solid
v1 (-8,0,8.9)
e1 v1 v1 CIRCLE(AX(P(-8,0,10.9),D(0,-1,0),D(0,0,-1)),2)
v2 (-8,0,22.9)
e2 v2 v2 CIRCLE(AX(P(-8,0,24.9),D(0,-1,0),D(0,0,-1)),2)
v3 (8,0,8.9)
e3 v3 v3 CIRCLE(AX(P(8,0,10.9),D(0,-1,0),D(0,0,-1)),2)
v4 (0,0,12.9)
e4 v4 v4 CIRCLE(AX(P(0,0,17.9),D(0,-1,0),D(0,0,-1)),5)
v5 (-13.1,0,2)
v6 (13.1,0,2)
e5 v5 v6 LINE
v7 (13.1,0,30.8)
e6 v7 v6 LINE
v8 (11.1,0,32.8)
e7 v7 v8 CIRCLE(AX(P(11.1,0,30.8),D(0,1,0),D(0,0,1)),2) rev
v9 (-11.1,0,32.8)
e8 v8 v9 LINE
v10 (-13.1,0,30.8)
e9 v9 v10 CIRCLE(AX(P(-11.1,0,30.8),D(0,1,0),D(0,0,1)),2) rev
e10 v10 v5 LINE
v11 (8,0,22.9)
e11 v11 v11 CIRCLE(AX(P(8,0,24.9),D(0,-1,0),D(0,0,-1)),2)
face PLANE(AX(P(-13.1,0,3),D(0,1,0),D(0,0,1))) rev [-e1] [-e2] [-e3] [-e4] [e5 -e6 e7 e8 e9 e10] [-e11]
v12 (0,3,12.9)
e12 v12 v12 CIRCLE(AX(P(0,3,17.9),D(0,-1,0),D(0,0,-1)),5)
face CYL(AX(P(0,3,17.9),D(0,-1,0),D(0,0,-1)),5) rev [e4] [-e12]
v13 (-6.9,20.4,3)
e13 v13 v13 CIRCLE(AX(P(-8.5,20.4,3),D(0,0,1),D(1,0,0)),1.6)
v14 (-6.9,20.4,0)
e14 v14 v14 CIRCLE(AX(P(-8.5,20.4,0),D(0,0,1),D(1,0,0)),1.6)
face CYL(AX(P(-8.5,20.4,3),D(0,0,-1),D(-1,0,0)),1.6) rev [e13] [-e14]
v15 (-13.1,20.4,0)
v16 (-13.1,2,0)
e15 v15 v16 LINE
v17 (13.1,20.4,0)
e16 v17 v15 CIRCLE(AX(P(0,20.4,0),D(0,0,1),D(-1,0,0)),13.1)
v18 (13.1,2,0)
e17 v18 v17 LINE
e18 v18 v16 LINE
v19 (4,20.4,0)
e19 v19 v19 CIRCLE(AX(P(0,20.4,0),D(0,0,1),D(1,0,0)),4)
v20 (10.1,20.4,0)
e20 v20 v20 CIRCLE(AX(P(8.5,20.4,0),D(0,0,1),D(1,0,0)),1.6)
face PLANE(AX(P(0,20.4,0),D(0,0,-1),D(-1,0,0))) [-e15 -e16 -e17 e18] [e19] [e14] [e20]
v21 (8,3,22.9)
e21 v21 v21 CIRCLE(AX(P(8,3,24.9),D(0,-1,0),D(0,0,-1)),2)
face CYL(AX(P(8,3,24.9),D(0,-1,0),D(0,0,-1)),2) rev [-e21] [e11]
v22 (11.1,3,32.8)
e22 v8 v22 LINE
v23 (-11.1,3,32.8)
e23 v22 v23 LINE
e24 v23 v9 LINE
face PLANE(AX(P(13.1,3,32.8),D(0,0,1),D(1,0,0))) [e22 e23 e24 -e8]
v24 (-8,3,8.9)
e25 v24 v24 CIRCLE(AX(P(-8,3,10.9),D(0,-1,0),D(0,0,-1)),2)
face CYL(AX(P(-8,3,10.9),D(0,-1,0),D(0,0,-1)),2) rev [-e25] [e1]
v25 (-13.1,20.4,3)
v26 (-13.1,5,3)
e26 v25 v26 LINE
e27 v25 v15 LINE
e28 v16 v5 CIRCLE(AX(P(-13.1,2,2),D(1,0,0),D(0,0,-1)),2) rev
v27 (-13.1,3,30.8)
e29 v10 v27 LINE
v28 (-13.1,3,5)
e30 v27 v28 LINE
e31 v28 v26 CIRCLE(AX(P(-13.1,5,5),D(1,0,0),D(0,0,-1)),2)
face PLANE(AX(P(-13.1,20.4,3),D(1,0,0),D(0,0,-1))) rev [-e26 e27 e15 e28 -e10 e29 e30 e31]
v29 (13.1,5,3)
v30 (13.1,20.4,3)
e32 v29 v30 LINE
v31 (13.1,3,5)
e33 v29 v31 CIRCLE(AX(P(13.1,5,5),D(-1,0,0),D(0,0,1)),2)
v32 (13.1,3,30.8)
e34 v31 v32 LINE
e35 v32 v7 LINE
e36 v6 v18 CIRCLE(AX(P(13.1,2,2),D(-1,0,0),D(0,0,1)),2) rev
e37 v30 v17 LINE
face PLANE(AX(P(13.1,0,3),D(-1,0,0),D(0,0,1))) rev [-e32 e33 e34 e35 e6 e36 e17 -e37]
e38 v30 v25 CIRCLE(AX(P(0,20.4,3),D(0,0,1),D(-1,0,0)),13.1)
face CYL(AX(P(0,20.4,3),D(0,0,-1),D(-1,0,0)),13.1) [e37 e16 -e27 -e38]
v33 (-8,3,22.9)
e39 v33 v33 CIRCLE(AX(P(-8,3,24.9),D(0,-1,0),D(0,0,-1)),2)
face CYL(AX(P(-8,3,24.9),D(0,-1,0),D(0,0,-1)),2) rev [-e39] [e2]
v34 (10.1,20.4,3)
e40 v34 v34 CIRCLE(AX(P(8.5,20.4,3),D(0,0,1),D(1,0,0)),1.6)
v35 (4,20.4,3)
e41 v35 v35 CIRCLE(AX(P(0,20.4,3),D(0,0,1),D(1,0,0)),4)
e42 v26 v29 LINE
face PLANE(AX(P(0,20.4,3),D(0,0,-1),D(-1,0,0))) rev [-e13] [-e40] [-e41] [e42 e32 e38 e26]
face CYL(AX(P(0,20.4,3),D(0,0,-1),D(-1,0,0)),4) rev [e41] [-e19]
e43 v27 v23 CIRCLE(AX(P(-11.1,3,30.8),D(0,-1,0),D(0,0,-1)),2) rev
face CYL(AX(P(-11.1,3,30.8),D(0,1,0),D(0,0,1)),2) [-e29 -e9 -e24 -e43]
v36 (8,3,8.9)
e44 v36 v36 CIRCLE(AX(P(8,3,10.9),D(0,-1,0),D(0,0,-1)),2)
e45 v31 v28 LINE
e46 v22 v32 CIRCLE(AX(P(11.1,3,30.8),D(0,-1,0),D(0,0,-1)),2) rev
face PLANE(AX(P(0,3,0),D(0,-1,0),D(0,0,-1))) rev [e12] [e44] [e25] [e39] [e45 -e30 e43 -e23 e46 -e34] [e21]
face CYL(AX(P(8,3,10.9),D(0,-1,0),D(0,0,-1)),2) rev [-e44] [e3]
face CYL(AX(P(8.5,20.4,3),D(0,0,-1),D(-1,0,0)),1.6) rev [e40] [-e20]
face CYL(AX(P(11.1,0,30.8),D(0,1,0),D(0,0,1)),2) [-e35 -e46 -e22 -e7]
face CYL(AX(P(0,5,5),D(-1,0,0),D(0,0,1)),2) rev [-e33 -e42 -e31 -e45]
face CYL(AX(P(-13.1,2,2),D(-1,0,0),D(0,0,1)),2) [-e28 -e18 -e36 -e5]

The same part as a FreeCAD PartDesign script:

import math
import FreeCAD as App
import Part
import Sketcher

V = App.Vector


def edges_at(feature, points):
    """Names of the edges that pass closest to the given points."""
    edges = feature.Shape.Edges
    near = lambda p: min(range(len(edges)), key=lambda i: edges[i].distToShape(Part.Vertex(*p))[0])
    return sorted({f"Edge{near(p) + 1}" for p in points})


def add_polygon(sketch, points):
    """Adds a closed chain of lines whose ends are joined by coincident constraints."""
    first, n = sketch.GeometryCount, len(points)
    for a, b in zip(points, points[1:] + points[:1]):
        sketch.addGeometry(Part.LineSegment(App.Vector(*a, 0), App.Vector(*b, 0)), False)
    for i in range(n):
        sketch.addConstraint(Sketcher.Constraint("Coincident", first + i, 2, first + (i + 1) % n, 1))

doc = App.newDocument("Part")
params = doc.addObject("Spreadsheet::Sheet", "Params")
for row, (alias, value) in enumerate([
    ("sketch1_diameter", "8 mm"),
    ("sketch1_diameter2", "3.2 mm"),
    ("sketch1_radius", "13.1 mm"),
    ("sketch1_height", "20.4 mm"),
    ("pad1_length", "3 mm"),
    ("sketch2_diameter", "4 mm"),
    ("sketch2_diameter2", "10 mm"),
    ("sketch2_width", "26.2 mm"),
    ("sketch2_height", "29.8 mm"),
    ("pad2_length", "3 mm"),
    ("fillet_radius", "2 mm"),
], start=1):
    params.set(f"A{row}", alias)
    params.set(f"B{row}", "=" + value)
    params.setAlias(f"B{row}", alias)

body = doc.addObject("PartDesign::Body", "Body")

sketch1 = doc.addObject("Sketcher::SketchObject", "Sketch")
body.addObject(sketch1)
sketch1.AttachmentSupport = (doc.XY_Plane, [""])
sketch1.MapMode = "FlatFace"
sketch1.addGeometry(Part.LineSegment(V(-13.1, 20.4, 0), V(-13.1, 0, 0)), False)
sketch1.addGeometry(Part.LineSegment(V(-13.1, 0, 0), V(13.1, 0, 0)), False)
sketch1.addGeometry(Part.LineSegment(V(13.1, 0, 0), V(13.1, 20.4, 0)), False)
sketch1.addGeometry(Part.ArcOfCircle(Part.Circle(V(0, 20.4, 0), V(0, 0, 1), 13.1), math.radians(0), math.radians(180)), False)
sketch1.addGeometry(Part.Circle(V(-8.5, 20.4, 0), V(0, 0, 1), 1.6), False)
sketch1.addGeometry(Part.Circle(V(0, 20.4, 0), V(0, 0, 1), 4), False)
sketch1.addGeometry(Part.Circle(V(8.5, 20.4, 0), V(0, 0, 1), 1.6), False)
sketch1.addConstraint(Sketcher.Constraint("Coincident", 0, 2, 1, 1))
sketch1.addConstraint(Sketcher.Constraint("Coincident", 1, 2, 2, 1))
sketch1.addConstraint(Sketcher.Constraint("Tangent", 2, 2, 3, 1))
sketch1.addConstraint(Sketcher.Constraint("Tangent", 3, 2, 0, 1))
sketch1.addConstraint(Sketcher.Constraint("Vertical", 0))
sketch1.addConstraint(Sketcher.Constraint("Horizontal", 1))
sketch1.addConstraint(Sketcher.Constraint("Vertical", 2))
sketch1.addConstraint(Sketcher.Constraint("Coincident", 5, 3, 3, 3))
sketch1.addConstraint(Sketcher.Constraint("Equal", 4, 6))
sketch1.addConstraint(Sketcher.Constraint("Symmetric", 0, 2, 1, 2, -1, 1))
sketch1.addConstraint(Sketcher.Constraint("Symmetric", 4, 3, 6, 3, -2))
sketch1.addConstraint(Sketcher.Constraint("Horizontal", 3, 3, 4, 3))
sketch1.addConstraint(Sketcher.Constraint("Diameter", 5, 8.0))
sketch1.addConstraint(Sketcher.Constraint("Diameter", 4, 3.2))
sketch1.addConstraint(Sketcher.Constraint("Radius", 3, 13.1))
sketch1.addConstraint(Sketcher.Constraint("DistanceY", 0, 2, 0, 1, 20.4))
sketch1.addConstraint(Sketcher.Constraint("DistanceX", 4, 3, 6, 3, 17.0))
sketch1.setExpression("Constraints[12]", "Params.sketch1_diameter")
sketch1.setExpression("Constraints[13]", "Params.sketch1_diameter2")
sketch1.setExpression("Constraints[14]", "Params.sketch1_radius")
sketch1.setExpression("Constraints[15]", "Params.sketch1_height")
pad1 = doc.addObject("PartDesign::Pad", "Pad")
body.addObject(pad1)
pad1.Profile = sketch1
pad1.setExpression("Length", "Params.pad1_length")

sketch2 = doc.addObject("Sketcher::SketchObject", "Sketch001")
body.addObject(sketch2)
sketch2.AttachmentSupport = (doc.XZ_Plane, [""])
sketch2.MapMode = "FlatFace"
add_polygon(sketch2, [(-13.1, 32.8), (-13.1, 3), (13.1, 3), (13.1, 32.8)])
sketch2.addGeometry(Part.Circle(V(-8, 10.9, 0), V(0, 0, 1), 2), False)
sketch2.addGeometry(Part.Circle(V(8, 10.9, 0), V(0, 0, 1), 2), False)
sketch2.addGeometry(Part.Circle(V(0, 17.9, 0), V(0, 0, 1), 5), False)
sketch2.addGeometry(Part.Circle(V(-8, 24.9, 0), V(0, 0, 1), 2), False)
sketch2.addGeometry(Part.Circle(V(8, 24.9, 0), V(0, 0, 1), 2), False)
sketch2.addConstraint(Sketcher.Constraint("Vertical", 0))
sketch2.addConstraint(Sketcher.Constraint("Horizontal", 1))
sketch2.addConstraint(Sketcher.Constraint("Vertical", 2))
sketch2.addConstraint(Sketcher.Constraint("Horizontal", 3))
sketch2.addConstraint(Sketcher.Constraint("Equal", 4, 5))
sketch2.addConstraint(Sketcher.Constraint("Equal", 5, 7))
sketch2.addConstraint(Sketcher.Constraint("Equal", 7, 8))
sketch2.addConstraint(Sketcher.Constraint("Symmetric", 4, 3, 5, 3, -2))
sketch2.addConstraint(Sketcher.Constraint("Symmetric", 7, 3, 8, 3, -2))
sketch2.addConstraint(Sketcher.Constraint("PointOnObject", 6, 3, -2))
sketch2.addConstraint(Sketcher.Constraint("Vertical", 4, 3, 7, 3))
sketch2.addConstraint(Sketcher.Constraint("Diameter", 4, 4.0))
sketch2.addConstraint(Sketcher.Constraint("Diameter", 6, 10.0))
sketch2.addConstraint(Sketcher.Constraint("DistanceX", 1, 1, 1, 2, 26.2))
sketch2.addConstraint(Sketcher.Constraint("DistanceY", 0, 2, 0, 1, 29.8))
sketch2.addConstraint(Sketcher.Constraint("DistanceX", 4, 3, -1, 1, 8.0))
sketch2.addConstraint(Sketcher.Constraint("DistanceY", -1, 1, 0, 2, 3.0))
sketch2.addConstraint(Sketcher.Constraint("DistanceY", 4, 3, 6, 3, 7.0))
sketch2.addConstraint(Sketcher.Constraint("DistanceY", 6, 3, 7, 3, 7.0))
sketch2.addConstraint(Sketcher.Constraint("DistanceY", -1, 1, 4, 3, 10.9))
sketch2.addConstraint(Sketcher.Constraint("DistanceX", 0, 2, -1, 1, 13.1))
sketch2.setExpression("Constraints[15]", "Params.sketch2_diameter")
sketch2.setExpression("Constraints[16]", "Params.sketch2_diameter2")
sketch2.setExpression("Constraints[17]", "Params.sketch2_width")
sketch2.setExpression("Constraints[18]", "Params.sketch2_height")
pad2 = doc.addObject("PartDesign::Pad", "Pad001")
body.addObject(pad2)
pad2.Profile = sketch2
pad2.setExpression("Length", "Params.pad2_length")
pad2.Reversed = True
doc.recompute()

fillet = doc.addObject("PartDesign::Fillet", "Fillet")
body.addObject(fillet)
fillet.Base = (pad2, edges_at(pad2, [
    (13.1, 1.5, 32.8),
    (0, 3, 3),
    (-13.1, 1.5, 32.8),
    (0, 0, 0),
]))
fillet.setExpression("Radius", "Params.fillet_radius")

doc.recompute()
